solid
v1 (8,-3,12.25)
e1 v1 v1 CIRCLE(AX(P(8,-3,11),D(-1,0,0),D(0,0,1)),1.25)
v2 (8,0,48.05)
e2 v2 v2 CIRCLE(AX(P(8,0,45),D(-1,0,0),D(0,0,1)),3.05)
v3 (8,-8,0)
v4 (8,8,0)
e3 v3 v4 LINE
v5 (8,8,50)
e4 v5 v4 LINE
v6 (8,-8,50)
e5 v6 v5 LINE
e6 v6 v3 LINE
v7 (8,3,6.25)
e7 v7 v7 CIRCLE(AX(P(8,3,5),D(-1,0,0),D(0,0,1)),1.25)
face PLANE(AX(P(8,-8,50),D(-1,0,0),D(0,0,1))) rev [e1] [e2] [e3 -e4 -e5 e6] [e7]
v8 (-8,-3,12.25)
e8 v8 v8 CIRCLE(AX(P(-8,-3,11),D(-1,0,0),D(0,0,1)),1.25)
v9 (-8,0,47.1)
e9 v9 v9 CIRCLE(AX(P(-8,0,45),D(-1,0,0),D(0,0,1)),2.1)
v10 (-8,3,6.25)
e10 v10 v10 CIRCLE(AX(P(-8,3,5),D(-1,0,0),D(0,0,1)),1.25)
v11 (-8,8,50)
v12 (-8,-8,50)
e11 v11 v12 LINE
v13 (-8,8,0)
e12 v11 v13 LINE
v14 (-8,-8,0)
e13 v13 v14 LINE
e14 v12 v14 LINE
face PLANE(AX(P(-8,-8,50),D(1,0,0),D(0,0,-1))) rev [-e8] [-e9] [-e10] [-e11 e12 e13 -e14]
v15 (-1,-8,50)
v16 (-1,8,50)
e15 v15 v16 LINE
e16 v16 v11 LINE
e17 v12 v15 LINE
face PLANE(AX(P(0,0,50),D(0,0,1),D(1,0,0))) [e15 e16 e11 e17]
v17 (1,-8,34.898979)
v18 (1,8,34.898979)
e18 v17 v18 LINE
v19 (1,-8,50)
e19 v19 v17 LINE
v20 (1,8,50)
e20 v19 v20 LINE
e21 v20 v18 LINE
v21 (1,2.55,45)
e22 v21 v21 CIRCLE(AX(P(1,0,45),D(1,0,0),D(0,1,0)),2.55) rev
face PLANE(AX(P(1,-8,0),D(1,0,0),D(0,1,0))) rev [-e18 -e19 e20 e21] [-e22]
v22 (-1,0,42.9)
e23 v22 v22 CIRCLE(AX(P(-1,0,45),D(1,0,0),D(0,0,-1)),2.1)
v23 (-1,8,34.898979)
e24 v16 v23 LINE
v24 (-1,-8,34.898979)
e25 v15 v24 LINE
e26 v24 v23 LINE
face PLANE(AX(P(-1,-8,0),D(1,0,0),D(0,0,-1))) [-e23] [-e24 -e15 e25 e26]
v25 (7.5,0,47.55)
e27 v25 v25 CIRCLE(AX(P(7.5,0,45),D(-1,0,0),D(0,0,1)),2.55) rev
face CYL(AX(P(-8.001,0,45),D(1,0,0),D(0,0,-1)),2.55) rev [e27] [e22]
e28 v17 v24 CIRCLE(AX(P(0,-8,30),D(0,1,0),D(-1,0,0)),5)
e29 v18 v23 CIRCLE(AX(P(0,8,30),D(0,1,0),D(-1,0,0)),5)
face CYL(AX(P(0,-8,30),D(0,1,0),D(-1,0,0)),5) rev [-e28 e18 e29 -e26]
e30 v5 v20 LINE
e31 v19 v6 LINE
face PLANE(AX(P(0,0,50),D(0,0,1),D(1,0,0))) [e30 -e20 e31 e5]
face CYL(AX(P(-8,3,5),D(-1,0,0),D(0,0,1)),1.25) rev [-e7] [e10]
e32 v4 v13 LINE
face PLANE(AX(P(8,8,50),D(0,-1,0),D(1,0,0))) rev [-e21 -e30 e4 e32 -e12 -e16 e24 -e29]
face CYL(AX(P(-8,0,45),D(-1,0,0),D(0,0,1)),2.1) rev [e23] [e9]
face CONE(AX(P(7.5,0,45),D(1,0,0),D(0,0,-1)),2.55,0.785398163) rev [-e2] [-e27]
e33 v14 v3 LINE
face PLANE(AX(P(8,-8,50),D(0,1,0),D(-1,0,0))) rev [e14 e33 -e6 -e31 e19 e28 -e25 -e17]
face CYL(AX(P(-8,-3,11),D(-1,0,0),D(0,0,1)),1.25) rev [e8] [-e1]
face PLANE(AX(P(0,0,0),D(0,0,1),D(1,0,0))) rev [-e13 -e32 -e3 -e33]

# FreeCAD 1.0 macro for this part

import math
import FreeCAD as App
import Part
import Sketcher
Q = App.Units.Quantity


def edges_at(feature, points):
    """Names of the edges that pass closest to the given points."""
    edges = feature.Shape.Edges
    near = lambda p: min(range(len(edges)), key=lambda i: edges[i].distToShape(Part.Vertex(*p))[0])
    return sorted({f"Edge{near(p) + 1}" for p in points})

doc = App.newDocument("Part")
body = doc.addObject("PartDesign::Body", "Body")

sketch1 = body.newObject("Sketcher::SketchObject", "Sketch")
sketch1.AttachmentSupport = (doc.getObject("XY_Plane"), [""])
sketch1.MapMode = "FlatFace"
sketch1.addGeometry([
    Part.LineSegment(App.Vector(-8, 8, 0), App.Vector(-8, -8, 0)),
    Part.LineSegment(App.Vector(-8, -8, 0), App.Vector(8, -8, 0)),
    Part.LineSegment(App.Vector(8, -8, 0), App.Vector(8, 8, 0)),
    Part.LineSegment(App.Vector(8, 8, 0), App.Vector(-8, 8, 0)),
], False)
sketch1.addConstraint([
    Sketcher.Constraint("Coincident", 0, 2, 1, 1),
    Sketcher.Constraint("Coincident", 1, 2, 2, 1),
    Sketcher.Constraint("Coincident", 2, 2, 3, 1),
    Sketcher.Constraint("Coincident", 3, 2, 0, 1),
    Sketcher.Constraint("Vertical", 0),
    Sketcher.Constraint("Horizontal", 1),
    Sketcher.Constraint("Vertical", 2),
    Sketcher.Constraint("Horizontal", 3),
    Sketcher.Constraint("Symmetric", 0, 2, 2, 2, -1, 1),
    Sketcher.Constraint("Equal", 3, 0),
    Sketcher.Constraint("DistanceX", 1, 1, 1, 2, Q("16 mm")),
])
pad1 = body.newObject("PartDesign::Pad", "Pad")
pad1.Profile = sketch1
pad1.Length = 50

sketch2 = body.newObject("Sketcher::SketchObject", "Sketch001")
sketch2.AttachmentSupport = (doc.getObject("XZ_Plane"), [""])
sketch2.MapMode = "FlatFace"
sketch2.AttachmentOffset = App.Placement(App.Vector(0, 0, -8), App.Rotation())
sketch2.addGeometry([
    Part.LineSegment(App.Vector(-1, 34.898979, 0), App.Vector(-1, 50, 0)),
    Part.LineSegment(App.Vector(-1, 50, 0), App.Vector(1, 50, 0)),
    Part.LineSegment(App.Vector(1, 50, 0), App.Vector(1, 34.898979, 0)),
    Part.ArcOfCircle(Part.Circle(App.Vector(0, 30, 0), App.Vector(0, 0, 1), 5), math.radians(101.536959), math.radians(438.463041)),
], False)
sketch2.addConstraint([
    Sketcher.Constraint("Coincident", 0, 2, 1, 1),
    Sketcher.Constraint("Coincident", 1, 2, 2, 1),
    Sketcher.Constraint("Coincident", 2, 2, 3, 2),
    Sketcher.Constraint("Coincident", 3, 1, 0, 1),
    Sketcher.Constraint("Vertical", 0),
    Sketcher.Constraint("Horizontal", 1),
    Sketcher.Constraint("Vertical", 2),
    Sketcher.Constraint("Symmetric", 2, 2, 3, 1, -2),
    Sketcher.Constraint("Radius", 3, Q("5 mm")),
    Sketcher.Constraint("DistanceX", 1, 1, 1, 2, Q("2 mm")),
    Sketcher.Constraint("DistanceY", -1, 1, 3, 3, Q("30 mm")),
    Sketcher.Constraint("DistanceY", -1, 1, 0, 2, Q("50 mm")),
])
pocket1 = body.newObject("PartDesign::Pocket", "Pocket")
pocket1.Profile = sketch2
pocket1.Type = "ThroughAll"
pocket1.Reversed = True

sketch3 = body.newObject("Sketcher::SketchObject", "Sketch002")
sketch3.AttachmentSupport = (doc.getObject("YZ_Plane"), [""])
sketch3.MapMode = "FlatFace"
sketch3.AttachmentOffset = App.Placement(App.Vector(0, 0, 8), App.Rotation())
sketch3.addGeometry(Part.Circle(App.Vector(0, 45, 0), App.Vector(0, 0, 1), 2.55), False)
sketch3.addConstraint([
    Sketcher.Constraint("PointOnObject", 0, 3, -2),
    Sketcher.Constraint("Diameter", 0, Q("5.1 mm")),
    Sketcher.Constraint("DistanceY", -1, 1, 0, 3, Q("45 mm")),
])
pocket2 = body.newObject("PartDesign::Pocket", "Pocket001")
pocket2.Profile = sketch3
pocket2.Type = "UpToFirst"
doc.recompute()

chamfer = body.newObject("PartDesign::Chamfer", "Chamfer")
chamfer.Base = (pocket2, edges_at(pocket2, [(8, 0, 47.55)]))
chamfer.Size = 0.5

sketch4 = body.newObject("Sketcher::SketchObject", "Sketch003")
sketch4.AttachmentSupport = (doc.getObject("YZ_Plane"), [""])
sketch4.MapMode = "FlatFace"
sketch4.AttachmentOffset = App.Placement(App.Vector(0, 0, -8), App.Rotation())
sketch4.addGeometry(Part.Circle(App.Vector(0, 45, 0), App.Vector(0, 0, 1), 2.1), False)
sketch4.addConstraint([
    Sketcher.Constraint("PointOnObject", 0, 3, -2),
    Sketcher.Constraint("Diameter", 0, Q("4.2 mm")),
    Sketcher.Constraint("DistanceY", -1, 1, 0, 3, Q("45 mm")),
])
doc.recompute()
hole = body.newObject("PartDesign::Hole", "Hole")
hole.Profile = sketch4
hole.ThreadType = "None"
hole.Diameter = 4.2
hole.DepthType = "Dimension"
hole.Depth = 7.638193
hole.DrillPoint = "Angled"
hole.DrillPointAngle = 118
hole.Reversed = True

sketch5 = body.newObject("Sketcher::SketchObject", "Sketch004")
sketch5.AttachmentSupport = (doc.getObject("YZ_Plane"), [""])
sketch5.MapMode = "FlatFace"
sketch5.AttachmentOffset = App.Placement(App.Vector(0, 0, -8), App.Rotation())
sketch5.addGeometry([
    Part.Circle(App.Vector(3, 5, 0), App.Vector(0, 0, 1), 1.25),
    Part.Circle(App.Vector(-3, 11, 0), App.Vector(0, 0, 1), 1.25),
], False)
sketch5.addConstraint([
    Sketcher.Constraint("Equal", 0, 1),
    Sketcher.Constraint("Diameter", 0, Q("2.5 mm")),
    Sketcher.Constraint("DistanceX", -1, 1, 0, 3, Q("3 mm")),
    Sketcher.Constraint("DistanceY", -1, 1, 0, 3, Q("5 mm")),
    Sketcher.Constraint("DistanceX", 1, 3, -1, 1, Q("3 mm")),
    Sketcher.Constraint("DistanceY", -1, 1, 1, 3, Q("11 mm")),
])
doc.recompute()
hole2 = body.newObject("PartDesign::Hole", "Hole001")
hole2.Profile = sketch5
hole2.ThreadType = "None"
hole2.Diameter = 2.5
hole2.DepthType = "ThroughAll"
hole2.Reversed = True

doc.recompute()
